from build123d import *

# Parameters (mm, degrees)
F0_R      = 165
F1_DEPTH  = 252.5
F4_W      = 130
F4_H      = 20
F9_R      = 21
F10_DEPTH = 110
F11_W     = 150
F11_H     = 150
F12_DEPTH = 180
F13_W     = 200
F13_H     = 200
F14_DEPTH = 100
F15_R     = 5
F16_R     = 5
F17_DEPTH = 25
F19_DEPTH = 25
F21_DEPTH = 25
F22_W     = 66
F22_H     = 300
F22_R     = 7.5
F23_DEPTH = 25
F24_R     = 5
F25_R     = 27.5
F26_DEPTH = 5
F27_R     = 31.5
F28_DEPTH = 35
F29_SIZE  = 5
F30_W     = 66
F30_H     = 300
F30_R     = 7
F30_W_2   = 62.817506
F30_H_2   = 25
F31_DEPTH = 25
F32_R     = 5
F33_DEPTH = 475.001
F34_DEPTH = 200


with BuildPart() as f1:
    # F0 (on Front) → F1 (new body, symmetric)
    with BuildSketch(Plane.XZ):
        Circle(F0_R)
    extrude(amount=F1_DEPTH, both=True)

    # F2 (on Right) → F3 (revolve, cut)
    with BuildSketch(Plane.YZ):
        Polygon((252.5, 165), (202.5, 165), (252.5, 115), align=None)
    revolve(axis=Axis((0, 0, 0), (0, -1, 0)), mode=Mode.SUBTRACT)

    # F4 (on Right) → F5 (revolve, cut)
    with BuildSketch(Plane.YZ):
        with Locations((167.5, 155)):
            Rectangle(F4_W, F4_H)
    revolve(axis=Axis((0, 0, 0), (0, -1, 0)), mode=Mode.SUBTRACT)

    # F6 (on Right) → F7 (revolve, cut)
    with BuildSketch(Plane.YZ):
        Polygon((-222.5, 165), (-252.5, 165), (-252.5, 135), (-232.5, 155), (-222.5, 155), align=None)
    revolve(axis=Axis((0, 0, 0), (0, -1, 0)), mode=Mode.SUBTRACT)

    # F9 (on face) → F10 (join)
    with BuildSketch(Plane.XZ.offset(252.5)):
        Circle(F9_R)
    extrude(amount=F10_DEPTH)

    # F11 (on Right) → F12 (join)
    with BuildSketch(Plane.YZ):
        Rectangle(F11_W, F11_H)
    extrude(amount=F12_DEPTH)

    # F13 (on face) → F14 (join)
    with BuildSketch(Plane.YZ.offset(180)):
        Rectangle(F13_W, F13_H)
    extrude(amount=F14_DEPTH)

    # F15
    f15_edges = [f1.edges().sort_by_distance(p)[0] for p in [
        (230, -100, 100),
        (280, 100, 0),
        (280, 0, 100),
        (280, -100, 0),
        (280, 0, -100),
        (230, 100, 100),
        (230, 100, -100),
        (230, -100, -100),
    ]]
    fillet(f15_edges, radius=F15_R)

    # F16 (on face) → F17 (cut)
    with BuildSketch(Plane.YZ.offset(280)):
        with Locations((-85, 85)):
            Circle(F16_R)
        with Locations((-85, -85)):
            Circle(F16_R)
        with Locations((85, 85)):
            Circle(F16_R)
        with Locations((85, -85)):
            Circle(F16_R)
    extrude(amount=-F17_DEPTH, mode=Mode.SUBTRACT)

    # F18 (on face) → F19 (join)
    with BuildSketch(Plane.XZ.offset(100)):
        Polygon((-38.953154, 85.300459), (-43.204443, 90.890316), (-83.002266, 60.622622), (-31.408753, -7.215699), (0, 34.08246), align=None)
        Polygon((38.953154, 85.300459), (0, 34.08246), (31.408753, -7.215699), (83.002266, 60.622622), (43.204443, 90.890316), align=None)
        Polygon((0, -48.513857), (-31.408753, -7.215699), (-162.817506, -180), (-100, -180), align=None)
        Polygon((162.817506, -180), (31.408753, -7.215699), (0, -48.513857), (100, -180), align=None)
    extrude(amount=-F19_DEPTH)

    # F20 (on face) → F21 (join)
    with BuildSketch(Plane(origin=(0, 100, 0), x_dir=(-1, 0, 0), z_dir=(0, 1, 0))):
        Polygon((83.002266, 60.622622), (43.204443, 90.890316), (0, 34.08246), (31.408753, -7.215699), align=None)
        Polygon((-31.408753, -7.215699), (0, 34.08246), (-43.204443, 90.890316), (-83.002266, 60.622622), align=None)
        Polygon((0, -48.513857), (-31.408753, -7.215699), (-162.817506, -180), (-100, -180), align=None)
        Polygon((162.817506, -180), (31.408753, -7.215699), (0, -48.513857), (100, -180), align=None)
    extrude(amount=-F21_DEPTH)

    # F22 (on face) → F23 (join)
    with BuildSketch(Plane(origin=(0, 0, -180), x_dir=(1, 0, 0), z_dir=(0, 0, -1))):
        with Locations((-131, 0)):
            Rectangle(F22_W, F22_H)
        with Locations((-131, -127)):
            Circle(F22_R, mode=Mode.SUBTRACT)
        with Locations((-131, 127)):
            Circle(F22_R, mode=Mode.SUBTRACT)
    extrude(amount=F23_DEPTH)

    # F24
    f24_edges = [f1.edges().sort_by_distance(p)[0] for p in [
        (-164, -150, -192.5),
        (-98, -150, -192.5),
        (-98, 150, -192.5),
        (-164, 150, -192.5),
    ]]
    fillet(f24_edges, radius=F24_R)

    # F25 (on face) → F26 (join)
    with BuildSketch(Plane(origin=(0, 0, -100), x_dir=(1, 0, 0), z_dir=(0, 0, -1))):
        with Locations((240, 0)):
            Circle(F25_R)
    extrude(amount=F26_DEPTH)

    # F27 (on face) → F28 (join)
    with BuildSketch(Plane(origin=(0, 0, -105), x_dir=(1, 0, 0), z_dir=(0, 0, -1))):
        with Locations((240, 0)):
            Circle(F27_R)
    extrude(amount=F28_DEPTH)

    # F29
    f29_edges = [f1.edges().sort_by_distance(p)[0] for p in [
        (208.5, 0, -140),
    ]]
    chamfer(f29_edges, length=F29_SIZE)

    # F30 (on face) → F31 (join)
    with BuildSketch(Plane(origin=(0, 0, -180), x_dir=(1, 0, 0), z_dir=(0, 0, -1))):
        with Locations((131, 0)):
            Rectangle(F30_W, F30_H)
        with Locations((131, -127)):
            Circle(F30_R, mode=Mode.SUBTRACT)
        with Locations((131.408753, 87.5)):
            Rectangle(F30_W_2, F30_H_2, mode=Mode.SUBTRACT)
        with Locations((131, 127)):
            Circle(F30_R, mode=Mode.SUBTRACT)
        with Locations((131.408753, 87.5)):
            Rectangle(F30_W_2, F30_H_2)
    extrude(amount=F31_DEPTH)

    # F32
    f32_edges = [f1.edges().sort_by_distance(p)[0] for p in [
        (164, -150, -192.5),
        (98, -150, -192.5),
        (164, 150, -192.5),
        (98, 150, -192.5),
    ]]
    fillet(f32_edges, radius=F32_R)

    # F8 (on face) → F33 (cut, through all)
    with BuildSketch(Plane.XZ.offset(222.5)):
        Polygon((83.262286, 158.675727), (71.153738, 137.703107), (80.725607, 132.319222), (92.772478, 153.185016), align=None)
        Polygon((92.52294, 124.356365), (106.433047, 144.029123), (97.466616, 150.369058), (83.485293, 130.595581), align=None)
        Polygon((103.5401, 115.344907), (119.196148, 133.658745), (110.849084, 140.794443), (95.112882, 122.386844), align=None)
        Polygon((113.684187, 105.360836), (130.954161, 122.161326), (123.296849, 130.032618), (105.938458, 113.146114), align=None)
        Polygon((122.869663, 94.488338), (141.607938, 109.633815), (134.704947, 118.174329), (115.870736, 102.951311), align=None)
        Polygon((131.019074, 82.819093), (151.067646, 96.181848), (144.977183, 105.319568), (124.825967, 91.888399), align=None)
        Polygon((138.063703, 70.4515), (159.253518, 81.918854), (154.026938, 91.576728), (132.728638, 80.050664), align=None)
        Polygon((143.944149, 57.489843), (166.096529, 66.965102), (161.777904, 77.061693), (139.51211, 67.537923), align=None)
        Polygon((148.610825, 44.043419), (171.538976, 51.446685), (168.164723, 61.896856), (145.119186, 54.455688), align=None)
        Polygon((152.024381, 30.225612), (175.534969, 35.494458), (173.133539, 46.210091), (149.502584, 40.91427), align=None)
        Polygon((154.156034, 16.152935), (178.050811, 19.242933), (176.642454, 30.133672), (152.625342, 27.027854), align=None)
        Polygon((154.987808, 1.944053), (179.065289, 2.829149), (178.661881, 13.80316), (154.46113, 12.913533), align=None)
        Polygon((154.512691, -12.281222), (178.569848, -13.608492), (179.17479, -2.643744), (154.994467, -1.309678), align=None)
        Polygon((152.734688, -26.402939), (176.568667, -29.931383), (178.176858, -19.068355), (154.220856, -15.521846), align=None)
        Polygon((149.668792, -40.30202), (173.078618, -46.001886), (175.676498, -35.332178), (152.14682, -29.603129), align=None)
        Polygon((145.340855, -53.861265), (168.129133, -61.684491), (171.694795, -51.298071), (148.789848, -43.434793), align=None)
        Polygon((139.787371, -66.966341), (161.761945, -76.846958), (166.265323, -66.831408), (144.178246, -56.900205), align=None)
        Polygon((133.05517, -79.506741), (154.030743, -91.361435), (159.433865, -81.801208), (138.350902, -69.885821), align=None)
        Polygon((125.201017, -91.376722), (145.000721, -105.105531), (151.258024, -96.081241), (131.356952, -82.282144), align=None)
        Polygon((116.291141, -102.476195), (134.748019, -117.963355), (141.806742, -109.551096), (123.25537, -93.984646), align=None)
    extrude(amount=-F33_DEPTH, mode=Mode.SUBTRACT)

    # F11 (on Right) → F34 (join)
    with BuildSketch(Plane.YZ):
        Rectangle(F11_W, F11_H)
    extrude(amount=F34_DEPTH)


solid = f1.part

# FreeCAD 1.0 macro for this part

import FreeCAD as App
import Part
import Sketcher

V = App.Vector
Q = App.Units.Quantity


def edges_at(feature, points):
    """Names of the edges that pass closest to the given points."""
    edges = feature.Shape.Edges
    near = lambda p: min(range(len(edges)), key=lambda i: edges[i].distToShape(Part.Vertex(*p))[0])
    return sorted({f"Edge{near(p) + 1}" for p in points})

doc = App.newDocument("Part")
body = doc.addObject("PartDesign::Body", "Body")

sketch1 = body.newObject("Sketcher::SketchObject", "Sketch")
sketch1.AttachmentSupport = (doc.getObject("XZ_Plane"), [""])
sketch1.MapMode = "FlatFace"
sketch1.addGeometry(Part.Circle(V(0, 0, 0), V(0, 0, 1), 165), False)
sketch1.addConstraint([
    Sketcher.Constraint("Coincident", 0, 3, -1, 1),
    Sketcher.Constraint("Diameter", 0, Q("330 mm")),
])
pad1 = body.newObject("PartDesign::Pad", "Pad")
pad1.Profile = sketch1
pad1.Length = 505
pad1.Midplane = True

sketch2 = body.newObject("Sketcher::SketchObject", "Sketch001")
sketch2.AttachmentSupport = (doc.getObject("YZ_Plane"), [""])
sketch2.MapMode = "FlatFace"
sketch2.addGeometry([
    Part.LineSegment(V(252.5, 165, 0), V(202.5, 165, 0)),
    Part.LineSegment(V(202.5, 165, 0), V(252.5, 115, 0)),
    Part.LineSegment(V(252.5, 115, 0), V(252.5, 165, 0)),
], False)
sketch2.addConstraint([
    Sketcher.Constraint("Coincident", 0, 2, 1, 1),
    Sketcher.Constraint("Coincident", 1, 2, 2, 1),
    Sketcher.Constraint("Coincident", 2, 2, 0, 1),
    Sketcher.Constraint("Horizontal", 0),
    Sketcher.Constraint("Vertical", 2),
    Sketcher.Constraint("Equal", 0, 2),
    Sketcher.Constraint("DistanceX", 0, 2, 0, 1, Q("50 mm")),
    Sketcher.Constraint("DistanceY", -1, 1, 0, 2, Q("165 mm")),
    Sketcher.Constraint("DistanceX", -1, 1, 0, 2, Q("202.5 mm")),
])
groove = body.newObject("PartDesign::Groove", "Groove")
groove.Profile = sketch2
groove.ReferenceAxis = (sketch2, ["H_Axis"])
groove.Angle = 360

sketch3 = body.newObject("Sketcher::SketchObject", "Sketch002")
sketch3.AttachmentSupport = (doc.getObject("YZ_Plane"), [""])
sketch3.MapMode = "FlatFace"
sketch3.addGeometry([
    Part.LineSegment(V(102.5, 165, 0), V(102.5, 145, 0)),
    Part.LineSegment(V(102.5, 145, 0), V(232.5, 145, 0)),
    Part.LineSegment(V(232.5, 145, 0), V(232.5, 165, 0)),
    Part.LineSegment(V(232.5, 165, 0), V(102.5, 165, 0)),
], False)
sketch3.addConstraint([
    Sketcher.Constraint("Coincident", 0, 2, 1, 1),
    Sketcher.Constraint("Coincident", 1, 2, 2, 1),
    Sketcher.Constraint("Coincident", 2, 2, 3, 1),
    Sketcher.Constraint("Coincident", 3, 2, 0, 1),
    Sketcher.Constraint("Vertical", 0),
    Sketcher.Constraint("Horizontal", 1),
    Sketcher.Constraint("Vertical", 2),
    Sketcher.Constraint("Horizontal", 3),
    Sketcher.Constraint("DistanceX", 1, 1, 1, 2, Q("130 mm")),
    Sketcher.Constraint("DistanceY", 0, 2, 0, 1, Q("20 mm")),
    Sketcher.Constraint("DistanceY", -1, 1, 0, 2, Q("145 mm")),
    Sketcher.Constraint("DistanceX", -1, 1, 0, 2, Q("102.5 mm")),
])
groove2 = body.newObject("PartDesign::Groove", "Groove001")
groove2.Profile = sketch3
groove2.ReferenceAxis = (sketch3, ["H_Axis"])
groove2.Angle = 360

sketch4 = body.newObject("Sketcher::SketchObject", "Sketch003")
sketch4.AttachmentSupport = (doc.getObject("YZ_Plane"), [""])
sketch4.MapMode = "FlatFace"
sketch4.addGeometry([
    Part.LineSegment(V(-222.5, 165, 0), V(-252.5, 165, 0)),
    Part.LineSegment(V(-252.5, 165, 0), V(-252.5, 135, 0)),
    Part.LineSegment(V(-252.5, 135, 0), V(-232.5, 155, 0)),
    Part.LineSegment(V(-232.5, 155, 0), V(-222.5, 155, 0)),
    Part.LineSegment(V(-222.5, 155, 0), V(-222.5, 165, 0)),
], False)
sketch4.addConstraint([
    Sketcher.Constraint("Coincident", 0, 2, 1, 1),
    Sketcher.Constraint("Coincident", 1, 2, 2, 1),
    Sketcher.Constraint("Coincident", 2, 2, 3, 1),
    Sketcher.Constraint("Coincident", 3, 2, 4, 1),
    Sketcher.Constraint("Coincident", 4, 2, 0, 1),
    Sketcher.Constraint("Horizontal", 0),
    Sketcher.Constraint("Vertical", 1),
    Sketcher.Constraint("Horizontal", 3),
    Sketcher.Constraint("Vertical", 4),
    Sketcher.Constraint("Equal", 0, 1),
    Sketcher.Constraint("Equal", 3, 4),
    Sketcher.Constraint("DistanceX", 0, 2, 0, 1, Q("30 mm")),
    Sketcher.Constraint("DistanceX", 3, 1, 3, 2, Q("10 mm")),
    Sketcher.Constraint("DistanceY", -1, 1, 0, 2, Q("165 mm")),
    Sketcher.Constraint("DistanceX", 0, 2, -1, 1, Q("252.5 mm")),
])
groove3 = body.newObject("PartDesign::Groove", "Groove002")
groove3.Profile = sketch4
groove3.ReferenceAxis = (sketch4, ["H_Axis"])
groove3.Angle = 360

sketch5 = body.newObject("Sketcher::SketchObject", "Sketch004")
sketch5.AttachmentSupport = (doc.getObject("XZ_Plane"), [""])
sketch5.MapMode = "FlatFace"
sketch5.AttachmentOffset = App.Placement(V(0, 0, 252.5), App.Rotation())
sketch5.addGeometry(Part.Circle(V(0, 0, 0), V(0, 0, 1), 21), False)
sketch5.addConstraint([
    Sketcher.Constraint("Coincident", 0, 3, -1, 1),
    Sketcher.Constraint("Diameter", 0, Q("42 mm")),
])
pad2 = body.newObject("PartDesign::Pad", "Pad001")
pad2.Profile = sketch5
pad2.Length = 110

sketch6 = body.newObject("Sketcher::SketchObject", "Sketch005")
sketch6.AttachmentSupport = (doc.getObject("YZ_Plane"), [""])
sketch6.MapMode = "FlatFace"
sketch6.addGeometry([
    Part.LineSegment(V(-75, 75, 0), V(-75, -75, 0)),
    Part.LineSegment(V(-75, -75, 0), V(75, -75, 0)),
    Part.LineSegment(V(75, -75, 0), V(75, 75, 0)),
    Part.LineSegment(V(75, 75, 0), V(-75, 75, 0)),
], False)
sketch6.addConstraint([
    Sketcher.Constraint("Coincident", 0, 2, 1, 1),
    Sketcher.Constraint("Coincident", 1, 2, 2, 1),
    Sketcher.Constraint("Coincident", 2, 2, 3, 1),
    Sketcher.Constraint("Coincident", 3, 2, 0, 1),
    Sketcher.Constraint("Vertical", 0),
    Sketcher.Constraint("Horizontal", 1),
    Sketcher.Constraint("Vertical", 2),
    Sketcher.Constraint("Horizontal", 3),
    Sketcher.Constraint("Symmetric", 0, 2, 2, 2, -1, 1),
    Sketcher.Constraint("Equal", 3, 0),
    Sketcher.Constraint("DistanceX", 1, 1, 1, 2, Q("150 mm")),
])
pad3 = body.newObject("PartDesign::Pad", "Pad002")
pad3.Profile = sketch6
pad3.Length = 180

sketch7 = body.newObject("Sketcher::SketchObject", "Sketch006")
sketch7.AttachmentSupport = (doc.getObject("YZ_Plane"), [""])
sketch7.MapMode = "FlatFace"
sketch7.AttachmentOffset = App.Placement(V(0, 0, 180), App.Rotation())
sketch7.addGeometry([
    Part.LineSegment(V(-100, 100, 0), V(-100, -100, 0)),
    Part.LineSegment(V(-100, -100, 0), V(100, -100, 0)),
    Part.LineSegment(V(100, -100, 0), V(100, 100, 0)),
    Part.LineSegment(V(100, 100, 0), V(-100, 100, 0)),
], False)
sketch7.addConstraint([
    Sketcher.Constraint("Coincident", 0, 2, 1, 1),
    Sketcher.Constraint("Coincident", 1, 2, 2, 1),
    Sketcher.Constraint("Coincident", 2, 2, 3, 1),
    Sketcher.Constraint("Coincident", 3, 2, 0, 1),
    Sketcher.Constraint("Vertical", 0),
    Sketcher.Constraint("Horizontal", 1),
    Sketcher.Constraint("Vertical", 2),
    Sketcher.Constraint("Horizontal", 3),
    Sketcher.Constraint("Symmetric", 0, 2, 2, 2, -1, 1),
    Sketcher.Constraint("Equal", 3, 0),
    Sketcher.Constraint("DistanceX", 1, 1, 1, 2, Q("200 mm")),
])
pad4 = body.newObject("PartDesign::Pad", "Pad003")
pad4.Profile = sketch7
pad4.Length = 100
doc.recompute()

fillet = body.newObject("PartDesign::Fillet", "Fillet")
fillet.Base = (pad4, edges_at(pad4, [
    (230, -100, 100),
    (280, 100, 0),
    (280, 0, 100),
    (280, -100, 0),
    (280, 0, -100),
    (230, 100, 100),
    (230, 100, -100),
    (230, -100, -100),
]))
fillet.Radius = 5

sketch8 = body.newObject("Sketcher::SketchObject", "Sketch007")
sketch8.AttachmentSupport = (doc.getObject("YZ_Plane"), [""])
sketch8.MapMode = "FlatFace"
sketch8.AttachmentOffset = App.Placement(V(0, 0, 280), App.Rotation())
sketch8.addGeometry([
    Part.Circle(V(-85, 85, 0), V(0, 0, 1), 5),
    Part.Circle(V(-85, -85, 0), V(0, 0, 1), 5),
    Part.Circle(V(85, 85, 0), V(0, 0, 1), 5),
    Part.Circle(V(85, -85, 0), V(0, 0, 1), 5),
], False)
sketch8.addConstraint([
    Sketcher.Constraint("Equal", 0, 1),
    Sketcher.Constraint("Equal", 1, 2),
    Sketcher.Constraint("Equal", 2, 3),
    Sketcher.Constraint("Symmetric", 1, 3, 2, 3, -1, 1),
    Sketcher.Constraint("Symmetric", 0, 3, 3, 3, -1, 1),
    Sketcher.Constraint("Symmetric", 0, 3, 2, 3, -2),
    Sketcher.Constraint("Diameter", 0, Q("10 mm")),
    Sketcher.Constraint("DistanceX", 0, 3, -1, 1, Q("85 mm")),
    Sketcher.Constraint("DistanceY", -1, 1, 0, 3, Q("85 mm")),
])
pocket1 = body.newObject("PartDesign::Pocket", "Pocket")
pocket1.Profile = sketch8
pocket1.Length = 25

sketch9 = body.newObject("Sketcher::SketchObject", "Sketch008")
sketch9.AttachmentSupport = (doc.getObject("XZ_Plane"), [""])
sketch9.MapMode = "FlatFace"
sketch9.AttachmentOffset = App.Placement(V(0, 0, 100), App.Rotation())
sketch9.addGeometry([
    Part.LineSegment(V(-38.953154, 85.300459, 0), V(-43.204443, 90.890316, 0)),
    Part.LineSegment(V(-43.204443, 90.890316, 0), V(-83.002266, 60.622622, 0)),
    Part.LineSegment(V(-83.002266, 60.622622, 0), V(-31.408753, -7.215699, 0)),
    Part.LineSegment(V(-31.408753, -7.215699, 0), V(0, 34.08246, 0)),
    Part.LineSegment(V(0, 34.08246, 0), V(-38.953154, 85.300459, 0)),
    Part.LineSegment(V(38.953154, 85.300459, 0), V(0, 34.08246, 0)),
    Part.LineSegment(V(0, 34.08246, 0), V(31.408753, -7.215699, 0)),
    Part.LineSegment(V(31.408753, -7.215699, 0), V(83.002266, 60.622622, 0)),
    Part.LineSegment(V(83.002266, 60.622622, 0), V(43.204443, 90.890316, 0)),
    Part.LineSegment(V(43.204443, 90.890316, 0), V(38.953154, 85.300459, 0)),
    Part.LineSegment(V(0, -48.513857, 0), V(-31.408753, -7.215699, 0)),
    Part.LineSegment(V(-31.408753, -7.215699, 0), V(-162.817506, -180, 0)),
    Part.LineSegment(V(-162.817506, -180, 0), V(-100, -180, 0)),
    Part.LineSegment(V(-100, -180, 0), V(0, -48.513857, 0)),
    Part.LineSegment(V(162.817506, -180, 0), V(31.408753, -7.215699, 0)),
    Part.LineSegment(V(31.408753, -7.215699, 0), V(0, -48.513857, 0)),
    Part.LineSegment(V(0, -48.513857, 0), V(100, -180, 0)),
    Part.LineSegment(V(100, -180, 0), V(162.817506, -180, 0)),
], False)
sketch9.addConstraint([
    Sketcher.Constraint("Coincident", 0, 2, 1, 1),
    Sketcher.Constraint("Coincident", 1, 2, 2, 1),
    Sketcher.Constraint("Coincident", 2, 2, 3, 1),
    Sketcher.Constraint("Coincident", 3, 2, 4, 1),
    Sketcher.Constraint("Coincident", 4, 2, 0, 1),
    Sketcher.Constraint("Coincident", 5, 2, 6, 1),
    Sketcher.Constraint("Coincident", 6, 2, 7, 1),
    Sketcher.Constraint("Coincident", 7, 2, 8, 1),
    Sketcher.Constraint("Coincident", 8, 2, 9, 1),
    Sketcher.Constraint("Coincident", 9, 2, 5, 1),
    Sketcher.Constraint("Coincident", 10, 2, 11, 1),
    Sketcher.Constraint("Coincident", 11, 2, 12, 1),
    Sketcher.Constraint("Coincident", 12, 2, 13, 1),
    Sketcher.Constraint("Coincident", 13, 2, 10, 1),
    Sketcher.Constraint("Coincident", 14, 2, 15, 1),
    Sketcher.Constraint("Coincident", 15, 2, 16, 1),
    Sketcher.Constraint("Coincident", 16, 2, 17, 1),
    Sketcher.Constraint("Coincident", 17, 2, 14, 1),
    Sketcher.Constraint("Horizontal", 12),
    Sketcher.Constraint("Horizontal", 17),
    Sketcher.Constraint("Coincident", 5, 2, 3, 2),
    Sketcher.Constraint("Coincident", 10, 2, 2, 2),
    Sketcher.Constraint("Coincident", 14, 2, 6, 2),
    Sketcher.Constraint("Coincident", 15, 2, 13, 2),
    Sketcher.Constraint("Symmetric", 2, 2, 6, 2, -2),
    Sketcher.Constraint("Symmetric", 1, 2, 7, 2, -2),
    Sketcher.Constraint("Symmetric", 0, 2, 8, 2, -2),
    Sketcher.Constraint("Symmetric", 4, 2, 9, 2, -2),
    Sketcher.Constraint("Symmetric", 12, 2, 16, 2, -2),
    Sketcher.Constraint("PointOnObject", 3, 2, -2),
    Sketcher.Constraint("PointOnObject", 13, 2, -2),
    Sketcher.Constraint("Perpendicular", 0, 1),
    Sketcher.Constraint("Perpendicular", 1, 2),
    Sketcher.Constraint("Parallel", 2, 4),
    Sketcher.Constraint("Parallel", 3, 5),
    Sketcher.Constraint("Parallel", 6, 10),
    Sketcher.Constraint("Parallel", 9, 11),
    Sketcher.Constraint("Parallel", 11, 13),
    Sketcher.Constraint("Parallel", 10, 14),
    Sketcher.Constraint("Distance", 1, Q("50 mm")),
    Sketcher.Constraint("DistanceY", 11, 2, -1, 1, Q("180 mm")),
    Sketcher.Constraint("DistanceX", 12, 2, -1, 1, Q("100 mm")),
    Sketcher.Constraint("DistanceY", 3, 2, 4, 2, Q("51.217999 mm")),
    Sketcher.Constraint("DistanceY", 2, 2, -1, 1, Q("7.215699 mm")),
    Sketcher.Constraint("DistanceY", 2, 2, 1, 2, Q("67.838321 mm")),
])
pad5 = body.newObject("PartDesign::Pad", "Pad004")
pad5.Profile = sketch9
pad5.Length = 25
pad5.Reversed = True

sketch10 = body.newObject("Sketcher::SketchObject", "Sketch009")
sketch10.AttachmentSupport = (doc.getObject("XZ_Plane"), [""])
sketch10.MapMode = "FlatFace"
sketch10.AttachmentOffset = App.Placement(V(0, 0, -100), App.Rotation())
sketch10.addGeometry([
    Part.LineSegment(V(-83.002266, 60.622622, 0), V(-43.204443, 90.890316, 0)),
    Part.LineSegment(V(-43.204443, 90.890316, 0), V(0, 34.08246, 0)),
    Part.LineSegment(V(0, 34.08246, 0), V(-31.408753, -7.215699, 0)),
    Part.LineSegment(V(-31.408753, -7.215699, 0), V(-83.002266, 60.622622, 0)),
    Part.LineSegment(V(31.408753, -7.215699, 0), V(0, 34.08246, 0)),
    Part.LineSegment(V(0, 34.08246, 0), V(43.204443, 90.890316, 0)),
    Part.LineSegment(V(43.204443, 90.890316, 0), V(83.002266, 60.622622, 0)),
    Part.LineSegment(V(83.002266, 60.622622, 0), V(31.408753, -7.215699, 0)),
    Part.LineSegment(V(0, -48.513857, 0), V(31.408753, -7.215699, 0)),
    Part.LineSegment(V(31.408753, -7.215699, 0), V(162.817506, -180, 0)),
    Part.LineSegment(V(162.817506, -180, 0), V(100, -180, 0)),
    Part.LineSegment(V(100, -180, 0), V(0, -48.513857, 0)),
    Part.LineSegment(V(-162.817506, -180, 0), V(-31.408753, -7.215699, 0)),
    Part.LineSegment(V(-31.408753, -7.215699, 0), V(0, -48.513857, 0)),
    Part.LineSegment(V(0, -48.513857, 0), V(-100, -180, 0)),
    Part.LineSegment(V(-100, -180, 0), V(-162.817506, -180, 0)),
], False)
sketch10.addConstraint([
    Sketcher.Constraint("Coincident", 0, 2, 1, 1),
    Sketcher.Constraint("Coincident", 1, 2, 2, 1),
    Sketcher.Constraint("Coincident", 2, 2, 3, 1),
    Sketcher.Constraint("Coincident", 3, 2, 0, 1),
    Sketcher.Constraint("Coincident", 4, 2, 5, 1),
    Sketcher.Constraint("Coincident", 5, 2, 6, 1),
    Sketcher.Constraint("Coincident", 6, 2, 7, 1),
    Sketcher.Constraint("Coincident", 7, 2, 4, 1),
    Sketcher.Constraint("Coincident", 8, 2, 9, 1),
    Sketcher.Constraint("Coincident", 9, 2, 10, 1),
    Sketcher.Constraint("Coincident", 10, 2, 11, 1),
    Sketcher.Constraint("Coincident", 11, 2, 8, 1),
    Sketcher.Constraint("Coincident", 12, 2, 13, 1),
    Sketcher.Constraint("Coincident", 13, 2, 14, 1),
    Sketcher.Constraint("Coincident", 14, 2, 15, 1),
    Sketcher.Constraint("Coincident", 15, 2, 12, 1),
    Sketcher.Constraint("Horizontal", 10),
    Sketcher.Constraint("Horizontal", 15),
    Sketcher.Constraint("Coincident", 4, 2, 1, 2),
    Sketcher.Constraint("Coincident", 8, 2, 7, 2),
    Sketcher.Constraint("Coincident", 12, 2, 2, 2),
    Sketcher.Constraint("Coincident", 13, 2, 11, 2),
    Sketcher.Constraint("Symmetric", 0, 2, 5, 2, -2),
    Sketcher.Constraint("Symmetric", 3, 2, 6, 2, -2),
    Sketcher.Constraint("Symmetric", 2, 2, 7, 2, -2),
    Sketcher.Constraint("Symmetric", 10, 2, 14, 2, -2),
    Sketcher.Constraint("PointOnObject", 1, 2, -2),
    Sketcher.Constraint("PointOnObject", 11, 2, -2),
    Sketcher.Constraint("Perpendicular", 0, 1),
    Sketcher.Constraint("Parallel", 1, 3),
    Sketcher.Constraint("Parallel", 3, 4),
    Sketcher.Constraint("Parallel", 7, 8),
    Sketcher.Constraint("Parallel", 4, 9),
    Sketcher.Constraint("Parallel", 9, 11),
    Sketcher.Constraint("Parallel", 8, 12),
    Sketcher.Constraint("Distance", 0, Q("50 mm")),
    Sketcher.Constraint("DistanceY", 9, 2, -1, 1, Q("180 mm")),
    Sketcher.Constraint("DistanceX", -1, 1, 10, 2, Q("100 mm")),
    Sketcher.Constraint("DistanceY", 2, 2, -1, 1, Q("7.215699 mm")),
    Sketcher.Constraint("DistanceX", 0, 2, 2, 2, Q("11.79569 mm")),
])
pad6 = body.newObject("PartDesign::Pad", "Pad005")
pad6.Profile = sketch10
pad6.Length = 25

sketch11 = body.newObject("Sketcher::SketchObject", "Sketch010")
sketch11.AttachmentSupport = (doc.getObject("XY_Plane"), [""])
sketch11.MapMode = "FlatFace"
sketch11.AttachmentOffset = App.Placement(V(0, 0, -180), App.Rotation())
sketch11.addGeometry([
    Part.LineSegment(V(-164, -150, 0), V(-164, 150, 0)),
    Part.LineSegment(V(-164, 150, 0), V(-98, 150, 0)),
    Part.LineSegment(V(-98, 150, 0), V(-98, -150, 0)),
    Part.LineSegment(V(-98, -150, 0), V(-164, -150, 0)),
    Part.Circle(V(-131, 127, 0), V(0, 0, 1), 7.5),
    Part.Circle(V(-131, -127, 0), V(0, 0, 1), 7.5),
], False)
sketch11.addConstraint([
    Sketcher.Constraint("Coincident", 0, 2, 1, 1),
    Sketcher.Constraint("Coincident", 1, 2, 2, 1),
    Sketcher.Constraint("Coincident", 2, 2, 3, 1),
    Sketcher.Constraint("Coincident", 3, 2, 0, 1),
    Sketcher.Constraint("Vertical", 0),
    Sketcher.Constraint("Horizontal", 1),
    Sketcher.Constraint("Vertical", 2),
    Sketcher.Constraint("Horizontal", 3),
    Sketcher.Constraint("Equal", 4, 5),
    Sketcher.Constraint("Symmetric", 4, 3, 5, 3, -1),
    Sketcher.Constraint("Diameter", 4, Q("15 mm")),
    Sketcher.Constraint("DistanceX", 1, 1, 1, 2, Q("66 mm")),
    Sketcher.Constraint("DistanceY", 0, 1, 0, 2, Q("300 mm")),
    Sketcher.Constraint("DistanceX", 4, 3, -1, 1, Q("131 mm")),
    Sketcher.Constraint("DistanceY", -1, 1, 4, 3, Q("127 mm")),
    Sketcher.Constraint("DistanceX", 0, 2, -1, 1, Q("164 mm")),
    Sketcher.Constraint("DistanceY", -1, 1, 0, 2, Q("150 mm")),
])
pad7 = body.newObject("PartDesign::Pad", "Pad006")
pad7.Profile = sketch11
pad7.Length = 25
pad7.Reversed = True
doc.recompute()

fillet2 = body.newObject("PartDesign::Fillet", "Fillet001")
fillet2.Base = (pad7, edges_at(pad7, [
    (-164, -150, -192.5),
    (-98, -150, -192.5),
    (-98, 150, -192.5),
    (-164, 150, -192.5),
]))
fillet2.Radius = 5

sketch12 = body.newObject("Sketcher::SketchObject", "Sketch011")
sketch12.AttachmentSupport = (doc.getObject("XY_Plane"), [""])
sketch12.MapMode = "FlatFace"
sketch12.AttachmentOffset = App.Placement(V(0, 0, -100), App.Rotation())
sketch12.addGeometry(Part.Circle(V(240, 0, 0), V(0, 0, 1), 27.5), False)
sketch12.addConstraint([
    Sketcher.Constraint("PointOnObject", 0, 3, -1),
    Sketcher.Constraint("Diameter", 0, Q("55 mm")),
    Sketcher.Constraint("DistanceX", -1, 1, 0, 3, Q("240 mm")),
])
pad8 = body.newObject("PartDesign::Pad", "Pad007")
pad8.Profile = sketch12
pad8.Length = 5
pad8.Reversed = True

sketch13 = body.newObject("Sketcher::SketchObject", "Sketch012")
sketch13.AttachmentSupport = (doc.getObject("XY_Plane"), [""])
sketch13.MapMode = "FlatFace"
sketch13.AttachmentOffset = App.Placement(V(0, 0, -105), App.Rotation())
sketch13.addGeometry(Part.Circle(V(240, 0, 0), V(0, 0, 1), 31.5), False)
sketch13.addConstraint([
    Sketcher.Constraint("PointOnObject", 0, 3, -1),
    Sketcher.Constraint("Diameter", 0, Q("63 mm")),
    Sketcher.Constraint("DistanceX", -1, 1, 0, 3, Q("240 mm")),
])
pad9 = body.newObject("PartDesign::Pad", "Pad008")
pad9.Profile = sketch13
pad9.Length = 35
pad9.Reversed = True
doc.recompute()

chamfer = body.newObject("PartDesign::Chamfer", "Chamfer")
chamfer.Base = (pad9, edges_at(pad9, [(208.5, 0, -140)]))
chamfer.Size = 5

sketch14 = body.newObject("Sketcher::SketchObject", "Sketch013")
sketch14.AttachmentSupport = (doc.getObject("XY_Plane"), [""])
sketch14.MapMode = "FlatFace"
sketch14.AttachmentOffset = App.Placement(V(0, 0, -180), App.Rotation())
sketch14.addGeometry([
    Part.LineSegment(V(98, -150, 0), V(98, 150, 0)),
    Part.LineSegment(V(98, 150, 0), V(164, 150, 0)),
    Part.LineSegment(V(164, 150, 0), V(164, -150, 0)),
    Part.LineSegment(V(164, -150, 0), V(98, -150, 0)),
    Part.Circle(V(131, 127, 0), V(0, 0, 1), 7),
    Part.Circle(V(131, -127, 0), V(0, 0, 1), 7),
], False)
sketch14.addConstraint([
    Sketcher.Constraint("Coincident", 0, 2, 1, 1),
    Sketcher.Constraint("Coincident", 1, 2, 2, 1),
    Sketcher.Constraint("Coincident", 2, 2, 3, 1),
    Sketcher.Constraint("Coincident", 3, 2, 0, 1),
    Sketcher.Constraint("Vertical", 0),
    Sketcher.Constraint("Horizontal", 1),
    Sketcher.Constraint("Vertical", 2),
    Sketcher.Constraint("Horizontal", 3),
    Sketcher.Constraint("Equal", 4, 5),
    Sketcher.Constraint("Symmetric", 4, 3, 5, 3, -1),
    Sketcher.Constraint("Diameter", 4, Q("14 mm")),
    Sketcher.Constraint("DistanceX", 1, 1, 1, 2, Q("66 mm")),
    Sketcher.Constraint("DistanceY", 0, 1, 0, 2, Q("300 mm")),
    Sketcher.Constraint("DistanceX", -1, 1, 4, 3, Q("131 mm")),
    Sketcher.Constraint("DistanceY", -1, 1, 4, 3, Q("127 mm")),
    Sketcher.Constraint("DistanceX", -1, 1, 0, 2, Q("98 mm")),
    Sketcher.Constraint("DistanceY", -1, 1, 0, 2, Q("150 mm")),
])
pad10 = body.newObject("PartDesign::Pad", "Pad009")
pad10.Profile = sketch14
pad10.Length = 25
pad10.Reversed = True
doc.recompute()

fillet3 = body.newObject("PartDesign::Fillet", "Fillet002")
fillet3.Base = (pad10, edges_at(pad10, [
    (164, -150, -192.5),
    (98, -150, -192.5),
    (164, 150, -192.5),
    (98, 150, -192.5),
]))
fillet3.Radius = 5

sketch15 = body.newObject("Sketcher::SketchObject", "Sketch014")
sketch15.AttachmentSupport = (doc.getObject("XZ_Plane"), [""])
sketch15.MapMode = "FlatFace"
sketch15.AttachmentOffset = App.Placement(V(0, 0, 222.5), App.Rotation())
sketch15.addGeometry([
    Part.LineSegment(V(83.262286, 158.675727, 0), V(71.153738, 137.703107, 0)),
    Part.LineSegment(V(71.153738, 137.703107, 0), V(80.725607, 132.319222, 0)),
    Part.LineSegment(V(80.725607, 132.319222, 0), V(92.772478, 153.185016, 0)),
    Part.LineSegment(V(92.772478, 153.185016, 0), V(83.262286, 158.675727, 0)),
    Part.LineSegment(V(92.52294, 124.356365, 0), V(106.433047, 144.029123, 0)),
    Part.LineSegment(V(106.433047, 144.029123, 0), V(97.466616, 150.369058, 0)),
    Part.LineSegment(V(97.466616, 150.369058, 0), V(83.485293, 130.595581, 0)),
    Part.LineSegment(V(83.485293, 130.595581, 0), V(92.52294, 124.356365, 0)),
    Part.LineSegment(V(103.5401, 115.344907, 0), V(119.196148, 133.658745, 0)),
    Part.LineSegment(V(119.196148, 133.658745, 0), V(110.849084, 140.794443, 0)),
    Part.LineSegment(V(110.849084, 140.794443, 0), V(95.112882, 122.386844, 0)),
    Part.LineSegment(V(95.112882, 122.386844, 0), V(103.5401, 115.344907, 0)),
    Part.LineSegment(V(113.684187, 105.360836, 0), V(130.954161, 122.161326, 0)),
    Part.LineSegment(V(130.954161, 122.161326, 0), V(123.296849, 130.032618, 0)),
    Part.LineSegment(V(123.296849, 130.032618, 0), V(105.938458, 113.146114, 0)),
    Part.LineSegment(V(105.938458, 113.146114, 0), V(113.684187, 105.360836, 0)),
    Part.LineSegment(V(122.869663, 94.488338, 0), V(141.607938, 109.633815, 0)),
    Part.LineSegment(V(141.607938, 109.633815, 0), V(134.704947, 118.174329, 0)),
    Part.LineSegment(V(134.704947, 118.174329, 0), V(115.870736, 102.951311, 0)),
    Part.LineSegment(V(115.870736, 102.951311, 0), V(122.869663, 94.488338, 0)),
    Part.LineSegment(V(131.019074, 82.819093, 0), V(151.067646, 96.181848, 0)),
    Part.LineSegment(V(151.067646, 96.181848, 0), V(144.977183, 105.319568, 0)),
    Part.LineSegment(V(144.977183, 105.319568, 0), V(124.825967, 91.888399, 0)),
    Part.LineSegment(V(124.825967, 91.888399, 0), V(131.019074, 82.819093, 0)),
    Part.LineSegment(V(138.063703, 70.4515, 0), V(159.253518, 81.918854, 0)),
    Part.LineSegment(V(159.253518, 81.918854, 0), V(154.026938, 91.576728, 0)),
    Part.LineSegment(V(154.026938, 91.576728, 0), V(132.728638, 80.050664, 0)),
    Part.LineSegment(V(132.728638, 80.050664, 0), V(138.063703, 70.4515, 0)),
    Part.LineSegment(V(143.944149, 57.489843, 0), V(166.096529, 66.965102, 0)),
    Part.LineSegment(V(166.096529, 66.965102, 0), V(161.777904, 77.061693, 0)),
    Part.LineSegment(V(161.777904, 77.061693, 0), V(139.51211, 67.537923, 0)),
    Part.LineSegment(V(139.51211, 67.537923, 0), V(143.944149, 57.489843, 0)),
    Part.LineSegment(V(148.610825, 44.043419, 0), V(171.538976, 51.446685, 0)),
    Part.LineSegment(V(171.538976, 51.446685, 0), V(168.164723, 61.896856, 0)),
    Part.LineSegment(V(168.164723, 61.896856, 0), V(145.119186, 54.455688, 0)),
    Part.LineSegment(V(145.119186, 54.455688, 0), V(148.610825, 44.043419, 0)),
    Part.LineSegment(V(152.024381, 30.225612, 0), V(175.534969, 35.494458, 0)),
    Part.LineSegment(V(175.534969, 35.494458, 0), V(173.133539, 46.210091, 0)),
    Part.LineSegment(V(173.133539, 46.210091, 0), V(149.502584, 40.91427, 0)),
    Part.LineSegment(V(149.502584, 40.91427, 0), V(152.024381, 30.225612, 0)),
    Part.LineSegment(V(154.156034, 16.152935, 0), V(178.050811, 19.242933, 0)),
    Part.LineSegment(V(178.050811, 19.242933, 0), V(176.642454, 30.133672, 0)),
    Part.LineSegment(V(176.642454, 30.133672, 0), V(152.625342, 27.027854, 0)),
    Part.LineSegment(V(152.625342, 27.027854, 0), V(154.156034, 16.152935, 0)),
    Part.LineSegment(V(154.987808, 1.944053, 0), V(179.065289, 2.829149, 0)),
    Part.LineSegment(V(179.065289, 2.829149, 0), V(178.661881, 13.80316, 0)),
    Part.LineSegment(V(178.661881, 13.80316, 0), V(154.46113, 12.913533, 0)),
    Part.LineSegment(V(154.46113, 12.913533, 0), V(154.987808, 1.944053, 0)),
    Part.LineSegment(V(154.512691, -12.281222, 0), V(178.569848, -13.608492, 0)),
    Part.LineSegment(V(178.569848, -13.608492, 0), V(179.17479, -2.643744, 0)),
    Part.LineSegment(V(179.17479, -2.643744, 0), V(154.994467, -1.309678, 0)),
    Part.LineSegment(V(154.994467, -1.309678, 0), V(154.512691, -12.281222, 0)),
    Part.LineSegment(V(152.734688, -26.402939, 0), V(176.568667, -29.931383, 0)),
    Part.LineSegment(V(176.568667, -29.931383, 0), V(178.176858, -19.068355, 0)),
    Part.LineSegment(V(178.176858, -19.068355, 0), V(154.220856, -15.521846, 0)),
    Part.LineSegment(V(154.220856, -15.521846, 0), V(152.734688, -26.402939, 0)),
    Part.LineSegment(V(149.668792, -40.30202, 0), V(173.078618, -46.001886, 0)),
    Part.LineSegment(V(173.078618, -46.001886, 0), V(175.676498, -35.332178, 0)),
    Part.LineSegment(V(175.676498, -35.332178, 0), V(152.14682, -29.603129, 0)),
    Part.LineSegment(V(152.14682, -29.603129, 0), V(149.668792, -40.30202, 0)),
    Part.LineSegment(V(145.340855, -53.861265, 0), V(168.129133, -61.684491, 0)),
    Part.LineSegment(V(168.129133, -61.684491, 0), V(171.694795, -51.298071, 0)),
    Part.LineSegment(V(171.694795, -51.298071, 0), V(148.789848, -43.434793, 0)),
    Part.LineSegment(V(148.789848, -43.434793, 0), V(145.340855, -53.861265, 0)),
    Part.LineSegment(V(139.787371, -66.966341, 0), V(161.761945, -76.846958, 0)),
    Part.LineSegment(V(161.761945, -76.846958, 0), V(166.265323, -66.831408, 0)),
    Part.LineSegment(V(166.265323, -66.831408, 0), V(144.178246, -56.900205, 0)),
    Part.LineSegment(V(144.178246, -56.900205, 0), V(139.787371, -66.966341, 0)),
    Part.LineSegment(V(133.05517, -79.506741, 0), V(154.030743, -91.361435, 0)),
    Part.LineSegment(V(154.030743, -91.361435, 0), V(159.433865, -81.801208, 0)),
    Part.LineSegment(V(159.433865, -81.801208, 0), V(138.350902, -69.885821, 0)),
    Part.LineSegment(V(138.350902, -69.885821, 0), V(133.05517, -79.506741, 0)),
    Part.LineSegment(V(125.201017, -91.376722, 0), V(145.000721, -105.105531, 0)),
    Part.LineSegment(V(145.000721, -105.105531, 0), V(151.258024, -96.081241, 0)),
    Part.LineSegment(V(151.258024, -96.081241, 0), V(131.356952, -82.282144, 0)),
    Part.LineSegment(V(131.356952, -82.282144, 0), V(125.201017, -91.376722, 0)),
    Part.LineSegment(V(116.291141, -102.476195, 0), V(134.748019, -117.963355, 0)),
    Part.LineSegment(V(134.748019, -117.963355, 0), V(141.806742, -109.551096, 0)),
    Part.LineSegment(V(141.806742, -109.551096, 0), V(123.25537, -93.984646, 0)),
    Part.LineSegment(V(123.25537, -93.984646, 0), V(116.291141, -102.476195, 0)),
], False)
sketch15.addConstraint([
    Sketcher.Constraint("Coincident", 0, 2, 1, 1),
    Sketcher.Constraint("Coincident", 1, 2, 2, 1),
    Sketcher.Constraint("Coincident", 2, 2, 3, 1),
    Sketcher.Constraint("Coincident", 3, 2, 0, 1),
    Sketcher.Constraint("Coincident", 4, 2, 5, 1),
    Sketcher.Constraint("Coincident", 5, 2, 6, 1),
    Sketcher.Constraint("Coincident", 6, 2, 7, 1),
    Sketcher.Constraint("Coincident", 7, 2, 4, 1),
    Sketcher.Constraint("Coincident", 8, 2, 9, 1),
    Sketcher.Constraint("Coincident", 9, 2, 10, 1),
    Sketcher.Constraint("Coincident", 10, 2, 11, 1),
    Sketcher.Constraint("Coincident", 11, 2, 8, 1),
    Sketcher.Constraint("Coincident", 12, 2, 13, 1),
    Sketcher.Constraint("Coincident", 13, 2, 14, 1),
    Sketcher.Constraint("Coincident", 14, 2, 15, 1),
    Sketcher.Constraint("Coincident", 15, 2, 12, 1),
    Sketcher.Constraint("Coincident", 16, 2, 17, 1),
    Sketcher.Constraint("Coincident", 17, 2, 18, 1),
    Sketcher.Constraint("Coincident", 18, 2, 19, 1),
    Sketcher.Constraint("Coincident", 19, 2, 16, 1),
    Sketcher.Constraint("Coincident", 20, 2, 21, 1),
    Sketcher.Constraint("Coincident", 21, 2, 22, 1),
    Sketcher.Constraint("Coincident", 22, 2, 23, 1),
    Sketcher.Constraint("Coincident", 23, 2, 20, 1),
    Sketcher.Constraint("Coincident", 24, 2, 25, 1),
    Sketcher.Constraint("Coincident", 25, 2, 26, 1),
    Sketcher.Constraint("Coincident", 26, 2, 27, 1),
    Sketcher.Constraint("Coincident", 27, 2, 24, 1),
    Sketcher.Constraint("Coincident", 28, 2, 29, 1),
    Sketcher.Constraint("Coincident", 29, 2, 30, 1),
    Sketcher.Constraint("Coincident", 30, 2, 31, 1),
    Sketcher.Constraint("Coincident", 31, 2, 28, 1),
    Sketcher.Constraint("Coincident", 32, 2, 33, 1),
    Sketcher.Constraint("Coincident", 33, 2, 34, 1),
    Sketcher.Constraint("Coincident", 34, 2, 35, 1),
    Sketcher.Constraint("Coincident", 35, 2, 32, 1),
    Sketcher.Constraint("Coincident", 36, 2, 37, 1),
    Sketcher.Constraint("Coincident", 37, 2, 38, 1),
    Sketcher.Constraint("Coincident", 38, 2, 39, 1),
    Sketcher.Constraint("Coincident", 39, 2, 36, 1),
    Sketcher.Constraint("Coincident", 40, 2, 41, 1),
    Sketcher.Constraint("Coincident", 41, 2, 42, 1),
    Sketcher.Constraint("Coincident", 42, 2, 43, 1),
    Sketcher.Constraint("Coincident", 43, 2, 40, 1),
    Sketcher.Constraint("Coincident", 44, 2, 45, 1),
    Sketcher.Constraint("Coincident", 45, 2, 46, 1),
    Sketcher.Constraint("Coincident", 46, 2, 47, 1),
    Sketcher.Constraint("Coincident", 47, 2, 44, 1),
    Sketcher.Constraint("Coincident", 48, 2, 49, 1),
    Sketcher.Constraint("Coincident", 49, 2, 50, 1),
    Sketcher.Constraint("Coincident", 50, 2, 51, 1),
    Sketcher.Constraint("Coincident", 51, 2, 48, 1),
    Sketcher.Constraint("Coincident", 52, 2, 53, 1),
    Sketcher.Constraint("Coincident", 53, 2, 54, 1),
    Sketcher.Constraint("Coincident", 54, 2, 55, 1),
    Sketcher.Constraint("Coincident", 55, 2, 52, 1),
    Sketcher.Constraint("Coincident", 56, 2, 57, 1),
    Sketcher.Constraint("Coincident", 57, 2, 58, 1),
    Sketcher.Constraint("Coincident", 58, 2, 59, 1),
    Sketcher.Constraint("Coincident", 59, 2, 56, 1),
    Sketcher.Constraint("Coincident", 60, 2, 61, 1),
    Sketcher.Constraint("Coincident", 61, 2, 62, 1),
    Sketcher.Constraint("Coincident", 62, 2, 63, 1),
    Sketcher.Constraint("Coincident", 63, 2, 60, 1),
    Sketcher.Constraint("Coincident", 64, 2, 65, 1),
    Sketcher.Constraint("Coincident", 65, 2, 66, 1),
    Sketcher.Constraint("Coincident", 66, 2, 67, 1),
    Sketcher.Constraint("Coincident", 67, 2, 64, 1),
    Sketcher.Constraint("Coincident", 68, 2, 69, 1),
    Sketcher.Constraint("Coincident", 69, 2, 70, 1),
    Sketcher.Constraint("Coincident", 70, 2, 71, 1),
    Sketcher.Constraint("Coincident", 71, 2, 68, 1),
    Sketcher.Constraint("Coincident", 72, 2, 73, 1),
    Sketcher.Constraint("Coincident", 73, 2, 74, 1),
    Sketcher.Constraint("Coincident", 74, 2, 75, 1),
    Sketcher.Constraint("Coincident", 75, 2, 72, 1),
    Sketcher.Constraint("Coincident", 76, 2, 77, 1),
    Sketcher.Constraint("Coincident", 77, 2, 78, 1),
    Sketcher.Constraint("Coincident", 78, 2, 79, 1),
    Sketcher.Constraint("Coincident", 79, 2, 76, 1),
    Sketcher.Constraint("DistanceX", -1, 1, 11, 2, Q("103.5401 mm")),
    Sketcher.Constraint("DistanceY", -1, 1, 22, 2, Q("91.888399 mm")),
    Sketcher.Constraint("DistanceY", -1, 1, 27, 2, Q("70.4515 mm")),
    Sketcher.Constraint("DistanceY", -1, 1, 28, 2, Q("66.965102 mm")),
    Sketcher.Constraint("DistanceX", -1, 1, 57, 2, Q("175.676498 mm")),
    Sketcher.Constraint("DistanceX", -1, 1, 70, 2, Q("138.350902 mm")),
    Sketcher.Constraint("DistanceX", -1, 1, 0, 2, Q("71.153738 mm")),
    Sketcher.Constraint("DistanceY", -1, 1, 1, 2, Q("132.319222 mm")),
    Sketcher.Constraint("DistanceX", -1, 1, 2, 2, Q("92.772478 mm")),
    Sketcher.Constraint("DistanceY", -1, 1, 5, 2, Q("150.369058 mm")),
    Sketcher.Constraint("DistanceY", -1, 1, 6, 2, Q("130.595581 mm")),
    Sketcher.Constraint("DistanceX", -1, 1, 7, 2, Q("92.52294 mm")),
    Sketcher.Constraint("DistanceX", -1, 1, 10, 2, Q("95.112882 mm")),
    Sketcher.Constraint("DistanceX", -1, 1, 12, 2, Q("130.954161 mm")),
    Sketcher.Constraint("DistanceX", -1, 1, 13, 2, Q("123.296849 mm")),
    Sketcher.Constraint("DistanceY", -1, 1, 13, 2, Q("130.032618 mm")),
    Sketcher.Constraint("DistanceY", -1, 1, 17, 2, Q("118.174329 mm")),
    Sketcher.Constraint("DistanceY", -1, 1, 18, 2, Q("102.951311 mm")),
    Sketcher.Constraint("DistanceY", -1, 1, 19, 2, Q("94.488338 mm")),
    Sketcher.Constraint("DistanceY", -1, 1, 20, 2, Q("96.181848 mm")),
    Sketcher.Constraint("DistanceY", -1, 1, 21, 2, Q("105.319568 mm")),
    Sketcher.Constraint("DistanceX", -1, 1, 24, 2, Q("159.253518 mm")),
    Sketcher.Constraint("DistanceX", -1, 1, 25, 2, Q("154.026938 mm")),
    Sketcher.Constraint("DistanceY", -1, 1, 25, 2, Q("91.576728 mm")),
    Sketcher.Constraint("DistanceX", -1, 1, 28, 2, Q("166.096529 mm")),
    Sketcher.Constraint("DistanceX", -1, 1, 30, 2, Q("139.51211 mm")),
    Sketcher.Constraint("DistanceX", -1, 1, 31, 2, Q("143.944149 mm")),
    Sketcher.Constraint("DistanceY", -1, 1, 34, 2, Q("54.455688 mm")),
    Sketcher.Constraint("DistanceY", -1, 1, 35, 2, Q("44.043419 mm")),
    Sketcher.Constraint("DistanceX", -1, 1, 36, 2, Q("175.534969 mm")),
    Sketcher.Constraint("DistanceY", -1, 1, 36, 2, Q("35.494458 mm")),
    Sketcher.Constraint("DistanceX", -1, 1, 37, 2, Q("173.133539 mm")),
    Sketcher.Constraint("DistanceY", -1, 1, 37, 2, Q("46.210091 mm")),
    Sketcher.Constraint("DistanceY", -1, 1, 38, 2, Q("40.91427 mm")),
    Sketcher.Constraint("DistanceX", -1, 1, 39, 2, Q("152.024381 mm")),
    Sketcher.Constraint("DistanceX", -1, 1, 40, 2, Q("178.050811 mm")),
    Sketcher.Constraint("DistanceX", -1, 1, 42, 2, Q("152.625342 mm")),
    Sketcher.Constraint("DistanceX", -1, 1, 44, 2, Q("179.065289 mm")),
    Sketcher.Constraint("DistanceY", -1, 1, 44, 2, Q("2.829149 mm")),
    Sketcher.Constraint("DistanceX", -1, 1, 45, 2, Q("178.661881 mm")),
    Sketcher.Constraint("DistanceY", -1, 1, 45, 2, Q("13.80316 mm")),
    Sketcher.Constraint("DistanceX", -1, 1, 46, 2, Q("154.46113 mm")),
    Sketcher.Constraint("DistanceX", -1, 1, 47, 2, Q("154.987808 mm")),
    Sketcher.Constraint("DistanceX", -1, 1, 48, 2, Q("178.569848 mm")),
    Sketcher.Constraint("DistanceX", -1, 1, 49, 2, Q("179.17479 mm")),
    Sketcher.Constraint("DistanceX", -1, 1, 51, 2, Q("154.512691 mm")),
    Sketcher.Constraint("DistanceX", -1, 1, 53, 2, Q("178.176858 mm")),
    Sketcher.Constraint("DistanceX", -1, 1, 55, 2, Q("152.734688 mm")),
    Sketcher.Constraint("DistanceY", 55, 2, -1, 1, Q("26.402939 mm")),
    Sketcher.Constraint("DistanceX", -1, 1, 56, 2, Q("173.078618 mm")),
    Sketcher.Constraint("DistanceX", -1, 1, 58, 2, Q("152.14682 mm")),
    Sketcher.Constraint("DistanceY", 58, 2, -1, 1, Q("29.603129 mm")),
    Sketcher.Constraint("DistanceX", -1, 1, 59, 2, Q("149.668792 mm")),
    Sketcher.Constraint("DistanceY", 59, 2, -1, 1, Q("40.30202 mm")),
    Sketcher.Constraint("DistanceY", 60, 2, -1, 1, Q("61.684491 mm")),
    Sketcher.Constraint("DistanceY", 61, 2, -1, 1, Q("51.298071 mm")),
    Sketcher.Constraint("DistanceX", -1, 1, 62, 2, Q("148.789848 mm")),
    Sketcher.Constraint("DistanceY", 64, 2, -1, 1, Q("76.846958 mm")),
    Sketcher.Constraint("DistanceX", -1, 1, 67, 2, Q("139.787371 mm")),
    Sketcher.Constraint("DistanceY", 67, 2, -1, 1, Q("66.966341 mm")),
    Sketcher.Constraint("DistanceY", 69, 2, -1, 1, Q("81.801208 mm")),
    Sketcher.Constraint("DistanceY", 70, 2, -1, 1, Q("69.885821 mm")),
    Sketcher.Constraint("DistanceX", -1, 1, 71, 2, Q("133.05517 mm")),
    Sketcher.Constraint("DistanceY", 71, 2, -1, 1, Q("79.506741 mm")),
    Sketcher.Constraint("DistanceX", -1, 1, 72, 2, Q("145.000721 mm")),
    Sketcher.Constraint("DistanceY", 72, 2, -1, 1, Q("105.105531 mm")),
    Sketcher.Constraint("DistanceY", 73, 2, -1, 1, Q("96.081241 mm")),
    Sketcher.Constraint("DistanceX", -1, 1, 74, 2, Q("131.356952 mm")),
    Sketcher.Constraint("DistanceY", 75, 2, -1, 1, Q("91.376722 mm")),
    Sketcher.Constraint("DistanceX", -1, 1, 76, 2, Q("134.748019 mm")),
    Sketcher.Constraint("DistanceX", -1, 1, 78, 2, Q("123.25537 mm")),
    Sketcher.Constraint("DistanceX", -1, 1, 79, 2, Q("116.291141 mm")),
    Sketcher.Constraint("Distance", 0, Q("24.217096 mm")),
    Sketcher.Constraint("Distance", 1, Q("10.982117 mm")),
    Sketcher.Constraint("Distance", 2, Q("24.093743 mm")),
    Sketcher.Constraint("Distance", 3, Q("10.981423 mm")),
    Sketcher.Constraint("Distance", 4, Q("24.093744 mm")),
    Sketcher.Constraint("Distance", 5, Q("10.981423 mm")),
    Sketcher.Constraint("Distance", 6, Q("24.217097 mm")),
    Sketcher.Constraint("Distance", 7, Q("10.982116 mm")),
    Sketcher.Constraint("Distance", 8, Q("24.093744 mm")),
    Sketcher.Constraint("Distance", 9, Q("10.981424 mm")),
    Sketcher.Constraint("Distance", 10, Q("24.217096 mm")),
    Sketcher.Constraint("Distance", 11, Q("10.982116 mm")),
    Sketcher.Constraint("Distance", 12, Q("24.093743 mm")),
    Sketcher.Constraint("Distance", 13, Q("10.981424 mm")),
    Sketcher.Constraint("Distance", 14, Q("24.217096 mm")),
    Sketcher.Constraint("Distance", 15, Q("10.982116 mm")),
    Sketcher.Constraint("Distance", 16, Q("24.093742 mm")),
    Sketcher.Constraint("Distance", 17, Q("10.981424 mm")),
    Sketcher.Constraint("Distance", 18, Q("24.217097 mm")),
    Sketcher.Constraint("Distance", 19, Q("10.982117 mm")),
    Sketcher.Constraint("Distance", 20, Q("24.093743 mm")),
    Sketcher.Constraint("Distance", 21, Q("10.981424 mm")),
    Sketcher.Constraint("Distance", 22, Q("24.217097 mm")),
    Sketcher.Constraint("Distance", 23, Q("10.982117 mm")),
    Sketcher.Constraint("Distance", 24, Q("24.093743 mm")),
    Sketcher.Constraint("Distance", 25, Q("10.981424 mm")),
    Sketcher.Constraint("Distance", 26, Q("24.217096 mm")),
    Sketcher.Constraint("Distance", 27, Q("10.982116 mm")),
    Sketcher.Constraint("Distance", 28, Q("24.093743 mm")),
    Sketcher.Constraint("Distance", 29, Q("10.981424 mm")),
    Sketcher.Constraint("Distance", 30, Q("24.217097 mm")),
    Sketcher.Constraint("Distance", 31, Q("10.982116 mm")),
    Sketcher.Constraint("Distance", 32, Q("24.093743 mm")),
    Sketcher.Constraint("Distance", 33, Q("10.981423 mm")),
    Sketcher.Constraint("Distance", 34, Q("24.217096 mm")),
    Sketcher.Constraint("Distance", 35, Q("10.982117 mm")),
    Sketcher.Constraint("Distance", 36, Q("24.093744 mm")),
    Sketcher.Constraint("Distance", 38, Q("24.217096 mm")),
    Sketcher.Constraint("Distance", 40, Q("24.093743 mm")),
    Sketcher.Constraint("Distance", 41, Q("10.981424 mm")),
    Sketcher.Constraint("Distance", 42, Q("24.217097 mm")),
    Sketcher.Constraint("Distance", 43, Q("10.982116 mm")),
    Sketcher.Constraint("Distance", 44, Q("24.093744 mm")),
    Sketcher.Constraint("Distance", 46, Q("24.217097 mm")),
    Sketcher.Constraint("Distance", 48, Q("24.093743 mm")),
    Sketcher.Constraint("Distance", 49, Q("10.981423 mm")),
    Sketcher.Constraint("Distance", 50, Q("24.217096 mm")),
    Sketcher.Constraint("Distance", 51, Q("10.982117 mm")),
    Sketcher.Constraint("Distance", 52, Q("24.093743 mm")),
    Sketcher.Constraint("Distance", 53, Q("10.981423 mm")),
    Sketcher.Constraint("Distance", 54, Q("24.217096 mm")),
    Sketcher.Constraint("Distance", 55, Q("10.982116 mm")),
    Sketcher.Constraint("Distance", 56, Q("24.093742 mm")),
    Sketcher.Constraint("Distance", 57, Q("10.981423 mm")),
    Sketcher.Constraint("Distance", 60, Q("24.093744 mm")),
    Sketcher.Constraint("Distance", 61, Q("10.981424 mm")),
    Sketcher.Constraint("Distance", 62, Q("24.217096 mm")),
    Sketcher.Constraint("Distance", 63, Q("10.982116 mm")),
    Sketcher.Constraint("Distance", 64, Q("24.093744 mm")),
    Sketcher.Constraint("Distance", 65, Q("10.981423 mm")),
    Sketcher.Constraint("Distance", 66, Q("24.217097 mm")),
    Sketcher.Constraint("Distance", 67, Q("10.982116 mm")),
    Sketcher.Constraint("Distance", 68, Q("24.093743 mm")),
    Sketcher.Constraint("Distance", 69, Q("10.981424 mm")),
    Sketcher.Constraint("Distance", 70, Q("24.217097 mm")),
    Sketcher.Constraint("Distance", 72, Q("24.093743 mm")),
    Sketcher.Constraint("Distance", 73, Q("10.981423 mm")),
    Sketcher.Constraint("Distance", 74, Q("24.217096 mm")),
    Sketcher.Constraint("Distance", 76, Q("24.093743 mm")),
    Sketcher.Constraint("Distance", 77, Q("10.981424 mm")),
    Sketcher.Constraint("Distance", 78, Q("24.217097 mm")),
    Sketcher.Constraint("Distance", 79, Q("10.982117 mm")),
    Sketcher.Constraint("DistanceY", -1, 1, 0, 2, Q("137.703107 mm")),
    Sketcher.Constraint("DistanceX", -1, 1, 4, 2, Q("106.433047 mm")),
    Sketcher.Constraint("DistanceX", -1, 1, 8, 2, Q("119.196148 mm")),
    Sketcher.Constraint("DistanceY", -1, 1, 8, 2, Q("133.658745 mm")),
    Sketcher.Constraint("DistanceX", -1, 1, 14, 2, Q("105.938458 mm")),
    Sketcher.Constraint("DistanceX", -1, 1, 16, 2, Q("141.607938 mm")),
    Sketcher.Constraint("DistanceX", -1, 1, 20, 2, Q("151.067646 mm")),
    Sketcher.Constraint("DistanceX", -1, 1, 32, 2, Q("171.538976 mm")),
    Sketcher.Constraint("DistanceY", -1, 1, 32, 2, Q("51.446685 mm")),
    Sketcher.Constraint("DistanceY", -1, 1, 40, 2, Q("19.242933 mm")),
    Sketcher.Constraint("DistanceX", -1, 1, 41, 2, Q("176.642454 mm")),
    Sketcher.Constraint("DistanceY", 48, 2, -1, 1, Q("13.608492 mm")),
    Sketcher.Constraint("DistanceX", -1, 1, 52, 2, Q("176.568667 mm")),
    Sketcher.Constraint("DistanceX", -1, 1, 60, 2, Q("168.129133 mm")),
    Sketcher.Constraint("DistanceX", -1, 1, 65, 2, Q("166.265323 mm")),
    Sketcher.Constraint("DistanceY", 76, 2, -1, 1, Q("117.963355 mm")),
])
pocket2 = body.newObject("PartDesign::Pocket", "Pocket001")
pocket2.Profile = sketch15
pocket2.Type = "ThroughAll"

sketch16 = body.newObject("Sketcher::SketchObject", "Sketch015")
sketch16.AttachmentSupport = (doc.getObject("YZ_Plane"), [""])
sketch16.MapMode = "FlatFace"
sketch16.addGeometry([
    Part.LineSegment(V(-75, 75, 0), V(-75, -75, 0)),
    Part.LineSegment(V(-75, -75, 0), V(75, -75, 0)),
    Part.LineSegment(V(75, -75, 0), V(75, 75, 0)),
    Part.LineSegment(V(75, 75, 0), V(-75, 75, 0)),
], False)
sketch16.addConstraint([
    Sketcher.Constraint("Coincident", 0, 2, 1, 1),
    Sketcher.Constraint("Coincident", 1, 2, 2, 1),
    Sketcher.Constraint("Coincident", 2, 2, 3, 1),
    Sketcher.Constraint("Coincident", 3, 2, 0, 1),
    Sketcher.Constraint("Vertical", 0),
    Sketcher.Constraint("Horizontal", 1),
    Sketcher.Constraint("Vertical", 2),
    Sketcher.Constraint("Horizontal", 3),
    Sketcher.Constraint("Symmetric", 0, 2, 2, 2, -1, 1),
    Sketcher.Constraint("Equal", 3, 0),
    Sketcher.Constraint("DistanceX", 1, 1, 1, 2, Q("150 mm")),
])
pad11 = body.newObject("PartDesign::Pad", "Pad010")
pad11.Profile = sketch16
pad11.Length = 200

doc.recompute()
